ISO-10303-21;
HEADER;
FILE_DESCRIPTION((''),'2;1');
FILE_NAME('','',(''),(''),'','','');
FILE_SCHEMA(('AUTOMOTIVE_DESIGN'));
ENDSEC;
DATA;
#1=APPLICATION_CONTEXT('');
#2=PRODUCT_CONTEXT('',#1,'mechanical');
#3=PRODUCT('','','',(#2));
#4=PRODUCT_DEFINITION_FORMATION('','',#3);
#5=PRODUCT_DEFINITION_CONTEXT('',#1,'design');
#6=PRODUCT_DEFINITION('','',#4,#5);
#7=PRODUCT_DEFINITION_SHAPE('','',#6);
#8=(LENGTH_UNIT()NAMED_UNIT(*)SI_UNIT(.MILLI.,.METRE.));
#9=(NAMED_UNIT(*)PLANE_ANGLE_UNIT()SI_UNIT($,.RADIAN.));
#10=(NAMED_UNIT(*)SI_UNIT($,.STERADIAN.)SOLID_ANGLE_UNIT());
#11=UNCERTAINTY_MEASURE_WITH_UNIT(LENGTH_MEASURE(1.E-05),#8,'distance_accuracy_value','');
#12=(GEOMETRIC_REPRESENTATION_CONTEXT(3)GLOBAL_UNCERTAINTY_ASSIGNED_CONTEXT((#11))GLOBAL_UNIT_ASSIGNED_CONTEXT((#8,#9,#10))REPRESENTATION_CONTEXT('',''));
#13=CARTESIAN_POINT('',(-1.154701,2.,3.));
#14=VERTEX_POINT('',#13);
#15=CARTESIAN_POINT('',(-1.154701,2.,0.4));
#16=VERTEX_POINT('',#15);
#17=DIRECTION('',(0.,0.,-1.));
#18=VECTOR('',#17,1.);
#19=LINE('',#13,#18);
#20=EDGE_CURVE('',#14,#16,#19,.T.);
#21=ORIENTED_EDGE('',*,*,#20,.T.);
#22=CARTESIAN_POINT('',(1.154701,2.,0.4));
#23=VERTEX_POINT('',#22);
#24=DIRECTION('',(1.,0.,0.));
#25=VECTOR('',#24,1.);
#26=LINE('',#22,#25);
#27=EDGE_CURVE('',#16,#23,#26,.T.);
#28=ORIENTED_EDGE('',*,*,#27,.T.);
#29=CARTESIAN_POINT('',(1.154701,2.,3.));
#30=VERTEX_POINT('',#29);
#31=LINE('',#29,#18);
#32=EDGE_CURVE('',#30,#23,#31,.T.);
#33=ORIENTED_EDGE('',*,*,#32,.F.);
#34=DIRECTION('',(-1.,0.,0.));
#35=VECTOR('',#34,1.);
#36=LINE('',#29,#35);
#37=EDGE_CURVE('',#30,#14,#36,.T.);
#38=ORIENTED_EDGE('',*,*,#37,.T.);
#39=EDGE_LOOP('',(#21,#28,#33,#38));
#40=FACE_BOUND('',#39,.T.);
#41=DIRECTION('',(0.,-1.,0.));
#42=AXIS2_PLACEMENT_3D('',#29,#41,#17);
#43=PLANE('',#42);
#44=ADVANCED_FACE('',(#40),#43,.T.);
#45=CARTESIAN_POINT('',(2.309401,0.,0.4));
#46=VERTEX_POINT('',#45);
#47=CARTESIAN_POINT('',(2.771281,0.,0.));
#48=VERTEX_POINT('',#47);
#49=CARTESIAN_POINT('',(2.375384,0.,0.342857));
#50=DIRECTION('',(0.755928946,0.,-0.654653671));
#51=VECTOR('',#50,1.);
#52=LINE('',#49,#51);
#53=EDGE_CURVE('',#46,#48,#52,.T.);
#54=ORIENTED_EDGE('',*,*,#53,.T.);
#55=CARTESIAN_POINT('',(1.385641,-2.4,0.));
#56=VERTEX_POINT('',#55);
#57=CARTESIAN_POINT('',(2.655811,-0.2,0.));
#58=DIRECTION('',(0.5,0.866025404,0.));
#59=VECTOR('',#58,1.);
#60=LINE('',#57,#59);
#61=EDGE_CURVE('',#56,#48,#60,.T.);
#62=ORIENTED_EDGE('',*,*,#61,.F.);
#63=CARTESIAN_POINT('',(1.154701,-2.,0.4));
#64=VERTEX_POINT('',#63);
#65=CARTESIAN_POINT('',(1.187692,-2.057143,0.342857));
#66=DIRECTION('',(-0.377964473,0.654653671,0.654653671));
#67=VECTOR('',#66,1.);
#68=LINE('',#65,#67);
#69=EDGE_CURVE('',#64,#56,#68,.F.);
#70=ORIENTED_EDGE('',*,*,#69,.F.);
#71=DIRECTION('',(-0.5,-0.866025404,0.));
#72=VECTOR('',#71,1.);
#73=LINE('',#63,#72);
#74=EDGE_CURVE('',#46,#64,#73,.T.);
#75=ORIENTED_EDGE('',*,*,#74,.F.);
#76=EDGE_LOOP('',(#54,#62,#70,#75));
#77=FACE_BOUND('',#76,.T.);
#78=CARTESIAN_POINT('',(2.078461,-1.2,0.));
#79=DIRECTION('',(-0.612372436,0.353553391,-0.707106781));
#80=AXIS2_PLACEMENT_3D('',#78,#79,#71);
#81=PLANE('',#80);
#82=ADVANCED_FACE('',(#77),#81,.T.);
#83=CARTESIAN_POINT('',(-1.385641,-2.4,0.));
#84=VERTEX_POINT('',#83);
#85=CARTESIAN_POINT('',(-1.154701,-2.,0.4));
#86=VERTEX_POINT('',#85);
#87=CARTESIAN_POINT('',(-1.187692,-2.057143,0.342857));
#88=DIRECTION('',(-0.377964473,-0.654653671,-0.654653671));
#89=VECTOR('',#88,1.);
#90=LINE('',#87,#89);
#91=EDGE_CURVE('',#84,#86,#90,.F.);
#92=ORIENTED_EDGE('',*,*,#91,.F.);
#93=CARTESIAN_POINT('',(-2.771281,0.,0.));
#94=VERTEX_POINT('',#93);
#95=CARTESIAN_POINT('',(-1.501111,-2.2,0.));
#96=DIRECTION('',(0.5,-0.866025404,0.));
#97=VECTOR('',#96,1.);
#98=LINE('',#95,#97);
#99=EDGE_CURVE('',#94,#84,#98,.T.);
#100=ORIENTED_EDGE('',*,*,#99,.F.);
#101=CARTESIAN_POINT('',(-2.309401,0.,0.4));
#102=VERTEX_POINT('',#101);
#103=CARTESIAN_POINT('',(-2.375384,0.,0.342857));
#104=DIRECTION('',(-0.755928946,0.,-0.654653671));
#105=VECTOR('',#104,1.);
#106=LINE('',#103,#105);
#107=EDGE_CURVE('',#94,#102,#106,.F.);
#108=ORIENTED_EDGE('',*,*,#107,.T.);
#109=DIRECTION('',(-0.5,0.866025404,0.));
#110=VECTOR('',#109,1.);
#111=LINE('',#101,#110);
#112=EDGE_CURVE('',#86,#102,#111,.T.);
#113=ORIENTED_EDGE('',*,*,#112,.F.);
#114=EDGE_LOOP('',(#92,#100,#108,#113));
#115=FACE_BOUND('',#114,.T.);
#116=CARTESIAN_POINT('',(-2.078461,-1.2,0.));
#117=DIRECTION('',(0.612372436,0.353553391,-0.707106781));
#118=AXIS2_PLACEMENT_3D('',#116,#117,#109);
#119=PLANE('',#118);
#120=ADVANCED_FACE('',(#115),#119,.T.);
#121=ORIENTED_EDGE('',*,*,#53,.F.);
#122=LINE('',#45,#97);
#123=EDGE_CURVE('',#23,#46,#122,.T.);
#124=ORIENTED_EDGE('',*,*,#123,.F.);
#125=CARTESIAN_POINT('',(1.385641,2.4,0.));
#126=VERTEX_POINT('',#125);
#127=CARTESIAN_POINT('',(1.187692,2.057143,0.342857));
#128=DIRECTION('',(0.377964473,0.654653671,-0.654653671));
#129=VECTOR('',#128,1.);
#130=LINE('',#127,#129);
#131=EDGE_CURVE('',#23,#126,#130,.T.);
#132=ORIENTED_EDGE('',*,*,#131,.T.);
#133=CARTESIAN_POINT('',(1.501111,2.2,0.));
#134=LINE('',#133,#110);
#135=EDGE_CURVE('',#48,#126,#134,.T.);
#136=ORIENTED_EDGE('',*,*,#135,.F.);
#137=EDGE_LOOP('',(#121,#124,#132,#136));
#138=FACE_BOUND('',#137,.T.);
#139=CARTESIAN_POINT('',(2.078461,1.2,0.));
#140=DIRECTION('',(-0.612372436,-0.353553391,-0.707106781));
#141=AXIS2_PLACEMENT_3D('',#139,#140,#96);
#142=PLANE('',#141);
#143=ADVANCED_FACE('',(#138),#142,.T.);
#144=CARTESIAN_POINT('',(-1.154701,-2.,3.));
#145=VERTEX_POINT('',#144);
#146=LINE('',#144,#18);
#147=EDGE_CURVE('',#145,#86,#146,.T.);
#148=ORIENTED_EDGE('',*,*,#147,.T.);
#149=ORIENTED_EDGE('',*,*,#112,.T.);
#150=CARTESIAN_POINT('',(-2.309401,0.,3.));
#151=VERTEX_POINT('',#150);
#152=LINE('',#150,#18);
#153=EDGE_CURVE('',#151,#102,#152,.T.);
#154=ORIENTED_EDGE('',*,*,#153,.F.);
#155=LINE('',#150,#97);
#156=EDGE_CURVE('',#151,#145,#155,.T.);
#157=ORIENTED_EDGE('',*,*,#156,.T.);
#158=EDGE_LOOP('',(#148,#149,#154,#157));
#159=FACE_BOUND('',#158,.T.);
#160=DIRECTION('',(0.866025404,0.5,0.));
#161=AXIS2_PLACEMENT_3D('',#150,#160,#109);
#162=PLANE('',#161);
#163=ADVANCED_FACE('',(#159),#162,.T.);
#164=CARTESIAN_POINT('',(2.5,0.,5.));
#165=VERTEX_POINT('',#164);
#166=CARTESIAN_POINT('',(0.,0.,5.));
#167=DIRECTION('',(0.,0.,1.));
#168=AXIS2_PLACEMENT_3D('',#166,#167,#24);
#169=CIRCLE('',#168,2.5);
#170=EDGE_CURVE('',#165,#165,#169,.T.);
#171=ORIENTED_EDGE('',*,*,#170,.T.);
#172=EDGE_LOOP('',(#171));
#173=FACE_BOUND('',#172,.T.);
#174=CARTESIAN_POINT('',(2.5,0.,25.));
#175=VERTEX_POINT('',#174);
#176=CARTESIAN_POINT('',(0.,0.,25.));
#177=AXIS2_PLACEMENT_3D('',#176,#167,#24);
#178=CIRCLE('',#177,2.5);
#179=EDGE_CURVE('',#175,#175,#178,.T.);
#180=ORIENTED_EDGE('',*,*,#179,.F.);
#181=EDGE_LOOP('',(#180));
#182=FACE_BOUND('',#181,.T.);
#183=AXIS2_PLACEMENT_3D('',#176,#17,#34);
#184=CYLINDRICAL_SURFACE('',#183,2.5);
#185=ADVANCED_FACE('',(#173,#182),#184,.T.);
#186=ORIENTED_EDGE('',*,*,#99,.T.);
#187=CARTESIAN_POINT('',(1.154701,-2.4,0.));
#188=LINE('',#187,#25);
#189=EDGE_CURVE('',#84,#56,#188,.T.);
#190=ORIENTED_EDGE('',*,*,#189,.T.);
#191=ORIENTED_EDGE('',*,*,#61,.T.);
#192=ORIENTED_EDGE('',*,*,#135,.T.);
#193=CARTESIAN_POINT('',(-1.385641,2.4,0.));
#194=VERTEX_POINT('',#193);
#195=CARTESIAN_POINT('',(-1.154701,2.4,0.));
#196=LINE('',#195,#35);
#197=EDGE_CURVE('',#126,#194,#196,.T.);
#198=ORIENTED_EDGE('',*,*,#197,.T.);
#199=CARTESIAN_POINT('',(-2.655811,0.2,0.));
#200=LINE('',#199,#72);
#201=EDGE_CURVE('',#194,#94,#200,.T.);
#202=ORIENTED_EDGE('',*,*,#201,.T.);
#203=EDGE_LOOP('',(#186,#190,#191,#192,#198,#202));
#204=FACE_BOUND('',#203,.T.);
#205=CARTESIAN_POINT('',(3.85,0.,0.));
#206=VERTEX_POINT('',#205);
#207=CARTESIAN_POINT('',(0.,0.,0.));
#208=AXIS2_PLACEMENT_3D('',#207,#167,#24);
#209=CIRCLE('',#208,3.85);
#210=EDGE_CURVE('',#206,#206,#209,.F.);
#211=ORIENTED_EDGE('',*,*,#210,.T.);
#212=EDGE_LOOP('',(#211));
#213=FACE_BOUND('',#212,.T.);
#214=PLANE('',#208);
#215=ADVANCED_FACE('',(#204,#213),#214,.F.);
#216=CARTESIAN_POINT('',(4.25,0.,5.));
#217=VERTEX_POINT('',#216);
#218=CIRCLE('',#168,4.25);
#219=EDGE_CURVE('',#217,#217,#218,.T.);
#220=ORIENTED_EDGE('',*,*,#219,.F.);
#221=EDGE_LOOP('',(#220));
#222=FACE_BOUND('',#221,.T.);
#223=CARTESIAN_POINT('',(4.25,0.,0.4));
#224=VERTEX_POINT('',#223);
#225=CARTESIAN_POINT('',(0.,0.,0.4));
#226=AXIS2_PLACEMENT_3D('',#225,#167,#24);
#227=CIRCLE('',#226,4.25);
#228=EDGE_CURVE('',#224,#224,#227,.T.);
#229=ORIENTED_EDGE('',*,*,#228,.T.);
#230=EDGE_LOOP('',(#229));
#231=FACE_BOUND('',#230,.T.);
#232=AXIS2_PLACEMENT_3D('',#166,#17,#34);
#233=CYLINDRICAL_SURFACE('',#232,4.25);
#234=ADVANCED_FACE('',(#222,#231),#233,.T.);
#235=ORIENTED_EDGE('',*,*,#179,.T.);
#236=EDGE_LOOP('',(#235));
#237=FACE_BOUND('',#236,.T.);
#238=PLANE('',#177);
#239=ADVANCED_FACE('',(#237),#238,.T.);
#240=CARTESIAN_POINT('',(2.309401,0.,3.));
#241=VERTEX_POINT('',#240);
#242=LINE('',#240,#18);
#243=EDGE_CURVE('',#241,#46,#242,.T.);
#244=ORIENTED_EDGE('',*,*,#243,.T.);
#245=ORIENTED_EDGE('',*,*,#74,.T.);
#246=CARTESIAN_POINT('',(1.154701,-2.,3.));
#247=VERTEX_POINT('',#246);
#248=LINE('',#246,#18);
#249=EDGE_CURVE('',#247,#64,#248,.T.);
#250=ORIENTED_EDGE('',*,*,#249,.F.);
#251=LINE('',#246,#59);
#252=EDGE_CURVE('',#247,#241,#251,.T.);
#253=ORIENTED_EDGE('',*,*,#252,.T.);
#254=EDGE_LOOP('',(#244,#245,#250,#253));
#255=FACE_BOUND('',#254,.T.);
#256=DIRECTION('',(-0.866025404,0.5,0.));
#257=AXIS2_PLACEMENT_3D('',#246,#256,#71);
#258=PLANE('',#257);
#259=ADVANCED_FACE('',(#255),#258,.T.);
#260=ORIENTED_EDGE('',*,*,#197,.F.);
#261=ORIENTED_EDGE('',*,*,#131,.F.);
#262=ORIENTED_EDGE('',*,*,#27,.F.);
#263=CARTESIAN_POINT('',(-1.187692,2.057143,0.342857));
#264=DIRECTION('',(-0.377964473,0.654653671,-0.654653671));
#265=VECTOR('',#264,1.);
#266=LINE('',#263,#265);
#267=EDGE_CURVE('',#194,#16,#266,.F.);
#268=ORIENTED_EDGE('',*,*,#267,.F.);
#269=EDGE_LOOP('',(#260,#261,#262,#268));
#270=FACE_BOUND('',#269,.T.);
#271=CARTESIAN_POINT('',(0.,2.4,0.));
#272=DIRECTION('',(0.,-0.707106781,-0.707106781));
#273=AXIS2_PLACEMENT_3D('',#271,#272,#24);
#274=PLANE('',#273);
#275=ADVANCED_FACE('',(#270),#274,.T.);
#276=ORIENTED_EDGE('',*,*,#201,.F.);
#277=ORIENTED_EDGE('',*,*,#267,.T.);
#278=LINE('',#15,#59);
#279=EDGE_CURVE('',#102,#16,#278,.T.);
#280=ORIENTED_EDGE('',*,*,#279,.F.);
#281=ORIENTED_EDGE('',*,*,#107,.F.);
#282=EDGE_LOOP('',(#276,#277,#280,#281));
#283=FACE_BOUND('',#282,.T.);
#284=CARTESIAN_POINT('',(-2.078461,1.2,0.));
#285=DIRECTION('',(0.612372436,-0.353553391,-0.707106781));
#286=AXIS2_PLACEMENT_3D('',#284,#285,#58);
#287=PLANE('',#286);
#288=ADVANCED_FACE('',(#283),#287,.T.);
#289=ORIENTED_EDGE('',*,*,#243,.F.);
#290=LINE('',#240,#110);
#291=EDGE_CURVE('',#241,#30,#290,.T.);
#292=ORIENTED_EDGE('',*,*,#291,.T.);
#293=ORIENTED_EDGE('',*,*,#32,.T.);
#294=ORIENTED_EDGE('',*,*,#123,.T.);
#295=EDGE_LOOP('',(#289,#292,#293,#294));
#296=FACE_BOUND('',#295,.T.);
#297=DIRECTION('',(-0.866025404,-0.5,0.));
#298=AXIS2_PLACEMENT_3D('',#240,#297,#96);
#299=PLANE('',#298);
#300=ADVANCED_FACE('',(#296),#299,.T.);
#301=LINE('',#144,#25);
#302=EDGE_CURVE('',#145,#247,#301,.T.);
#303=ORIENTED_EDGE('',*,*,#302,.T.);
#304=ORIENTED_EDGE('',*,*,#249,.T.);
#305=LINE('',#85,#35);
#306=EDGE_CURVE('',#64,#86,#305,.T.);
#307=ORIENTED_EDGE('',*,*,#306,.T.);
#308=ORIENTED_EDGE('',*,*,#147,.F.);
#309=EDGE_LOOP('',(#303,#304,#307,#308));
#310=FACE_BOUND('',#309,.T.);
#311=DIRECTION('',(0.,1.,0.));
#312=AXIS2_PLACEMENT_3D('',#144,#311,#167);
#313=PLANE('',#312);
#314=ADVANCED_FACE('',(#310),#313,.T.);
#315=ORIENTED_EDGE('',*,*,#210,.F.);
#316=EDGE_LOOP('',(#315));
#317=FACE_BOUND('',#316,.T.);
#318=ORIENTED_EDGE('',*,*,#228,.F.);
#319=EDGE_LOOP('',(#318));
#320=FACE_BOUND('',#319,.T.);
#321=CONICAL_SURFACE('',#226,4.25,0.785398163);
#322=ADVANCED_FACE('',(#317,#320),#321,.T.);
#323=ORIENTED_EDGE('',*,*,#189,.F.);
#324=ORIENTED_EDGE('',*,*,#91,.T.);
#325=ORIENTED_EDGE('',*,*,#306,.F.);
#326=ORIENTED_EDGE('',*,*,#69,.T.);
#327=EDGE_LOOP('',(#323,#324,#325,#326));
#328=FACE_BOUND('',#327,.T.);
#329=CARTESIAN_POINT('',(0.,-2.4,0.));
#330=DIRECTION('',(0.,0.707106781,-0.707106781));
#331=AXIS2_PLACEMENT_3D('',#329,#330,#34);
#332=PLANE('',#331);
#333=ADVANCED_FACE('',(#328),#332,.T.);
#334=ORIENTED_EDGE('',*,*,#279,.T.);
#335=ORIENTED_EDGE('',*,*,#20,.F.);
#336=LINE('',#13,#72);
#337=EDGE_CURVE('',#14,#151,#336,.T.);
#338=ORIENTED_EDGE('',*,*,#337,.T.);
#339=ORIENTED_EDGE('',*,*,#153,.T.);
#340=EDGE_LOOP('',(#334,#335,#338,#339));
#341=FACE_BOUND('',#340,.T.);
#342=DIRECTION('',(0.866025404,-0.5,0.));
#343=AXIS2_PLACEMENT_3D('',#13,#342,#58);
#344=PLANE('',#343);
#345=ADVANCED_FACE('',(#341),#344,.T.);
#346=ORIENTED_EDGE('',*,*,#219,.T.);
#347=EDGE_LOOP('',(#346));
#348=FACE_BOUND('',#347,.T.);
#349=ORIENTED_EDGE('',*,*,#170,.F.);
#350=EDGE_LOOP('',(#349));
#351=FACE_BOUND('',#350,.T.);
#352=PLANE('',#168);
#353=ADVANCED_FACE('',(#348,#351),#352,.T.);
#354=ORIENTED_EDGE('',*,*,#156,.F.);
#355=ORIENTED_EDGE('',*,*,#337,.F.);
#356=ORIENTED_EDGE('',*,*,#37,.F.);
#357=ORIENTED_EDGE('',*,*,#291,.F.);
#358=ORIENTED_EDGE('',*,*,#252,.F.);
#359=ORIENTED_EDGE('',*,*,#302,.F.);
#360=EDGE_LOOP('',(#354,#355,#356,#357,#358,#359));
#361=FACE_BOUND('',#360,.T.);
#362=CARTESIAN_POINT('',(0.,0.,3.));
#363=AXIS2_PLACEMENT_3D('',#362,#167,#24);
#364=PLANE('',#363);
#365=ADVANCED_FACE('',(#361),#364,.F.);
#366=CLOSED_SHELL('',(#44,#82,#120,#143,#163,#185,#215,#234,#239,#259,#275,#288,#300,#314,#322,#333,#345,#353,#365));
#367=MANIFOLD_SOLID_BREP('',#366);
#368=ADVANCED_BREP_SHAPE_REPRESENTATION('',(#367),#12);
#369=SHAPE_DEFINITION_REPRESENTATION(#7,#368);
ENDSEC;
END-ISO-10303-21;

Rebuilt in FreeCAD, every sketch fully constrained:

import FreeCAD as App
import Part
import Sketcher
from FreeCAD import Vector
Q = App.Units.Quantity


def edges_at(feature, points):
    """Names of the edges that pass closest to the given points."""
    edges = feature.Shape.Edges
    near = lambda p: min(range(len(edges)), key=lambda i: edges[i].distToShape(Part.Vertex(*p))[0])
    return sorted({f"Edge{near(p) + 1}" for p in points})


def add_polygon(sketch, points):
    """Adds a closed chain of lines whose ends are joined by coincident constraints."""
    first, n = sketch.GeometryCount, len(points)
    for a, b in zip(points, points[1:] + points[:1]):
        sketch.addGeometry(Part.LineSegment(App.Vector(*a, 0), App.Vector(*b, 0)), False)
    for i in range(n):
        sketch.addConstraint(Sketcher.Constraint("Coincident", first + i, 2, first + (i + 1) % n, 1))

doc = App.newDocument("Part")
params = doc.addObject("Spreadsheet::Sheet", "Params")
for row, (alias, value) in enumerate([
    ("sketch1_diameter", "5 mm"),
    ("pad1_length", "25 mm"),
    ("sketch2_diameter", "8.5 mm"),
    ("pad2_length", "5 mm"),
    ("pocket1_length", "3 mm"),
    ("chamfer_size", "0.4 mm"),
], start=1):
    params.set(f"A{row}", alias)
    params.set(f"B{row}", "=" + value)
    params.setAlias(f"B{row}", alias)

body = doc.addObject("PartDesign::Body", "Body")

sketch1 = body.newObject("Sketcher::SketchObject", "Sketch")
sketch1.AttachmentSupport = (doc.getObject("XY_Plane"), [""])
sketch1.MapMode = "FlatFace"
sketch1.addGeometry(Part.Circle(Vector(0, 0, 0), Vector(0, 0, 1), 2.5), False)
sketch1.addConstraint([
    Sketcher.Constraint("Coincident", 0, 3, -1, 1),
    Sketcher.Constraint("Diameter", 0, 5.0),
])
sketch1.setExpression("Constraints[1]", "Params.sketch1_diameter")
pad1 = body.newObject("PartDesign::Pad", "Pad")
pad1.Profile = sketch1
pad1.setExpression("Length", "Params.pad1_length")

sketch2 = body.newObject("Sketcher::SketchObject", "Sketch001")
sketch2.AttachmentSupport = (doc.getObject("XY_Plane"), [""])
sketch2.MapMode = "FlatFace"
sketch2.addGeometry(Part.Circle(Vector(0, 0, 0), Vector(0, 0, 1), 4.25), False)
sketch2.addConstraint([
    Sketcher.Constraint("Coincident", 0, 3, -1, 1),
    Sketcher.Constraint("Diameter", 0, 8.5),
])
sketch2.setExpression("Constraints[1]", "Params.sketch2_diameter")
pad2 = body.newObject("PartDesign::Pad", "Pad001")
pad2.Profile = sketch2
pad2.setExpression("Length", "Params.pad2_length")

sketch3 = body.newObject("Sketcher::SketchObject", "Sketch002")
sketch3.AttachmentSupport = (doc.getObject("XY_Plane"), [""])
sketch3.MapMode = "FlatFace"
add_polygon(sketch3, [(2.309401, 0), (1.154701, 2), (-1.154701, 2), (-2.309401, 0), (-1.154701, -2), (1.154701, -2)])
sketch3.addConstraint([
    Sketcher.Constraint("Horizontal", 1),
    Sketcher.Constraint("Horizontal", 4),
    Sketcher.Constraint("Symmetric", 0, 2, 3, 2, -1, 1),
    Sketcher.Constraint("Symmetric", 2, 2, 5, 2, -1, 1),
    Sketcher.Constraint("PointOnObject", 2, 2, -1),
    Sketcher.Constraint("Parallel", 2, 5),
    Sketcher.Constraint("Vertical", 1, 2, 3, 2),
    Sketcher.Constraint("Angle", 0, Q("120 deg")),
    Sketcher.Constraint("DistanceY", -1, 1, 0, 2, 2.0),
    Sketcher.Constraint("DistanceX", 1, 2, 1, 1, 2.309401),
])
pocket1 = body.newObject("PartDesign::Pocket", "Pocket")
pocket1.Profile = sketch3
pocket1.setExpression("Length", "Params.pocket1_length")
pocket1.Reversed = True
doc.recompute()

chamfer = body.newObject("PartDesign::Chamfer", "Chamfer")
chamfer.Base = (pocket1, edges_at(pocket1, [
    (1.732, -1, 0),
    (1.732, 1, 0),
    (0, 2, 0),
    (-1.732, 1, 0),
    (-1.732, -1, 0),
    (0, -2, 0),
    (-4.25, 0, 0),
]))
chamfer.setExpression("Size", "Params.chamfer_size")

doc.recompute()
